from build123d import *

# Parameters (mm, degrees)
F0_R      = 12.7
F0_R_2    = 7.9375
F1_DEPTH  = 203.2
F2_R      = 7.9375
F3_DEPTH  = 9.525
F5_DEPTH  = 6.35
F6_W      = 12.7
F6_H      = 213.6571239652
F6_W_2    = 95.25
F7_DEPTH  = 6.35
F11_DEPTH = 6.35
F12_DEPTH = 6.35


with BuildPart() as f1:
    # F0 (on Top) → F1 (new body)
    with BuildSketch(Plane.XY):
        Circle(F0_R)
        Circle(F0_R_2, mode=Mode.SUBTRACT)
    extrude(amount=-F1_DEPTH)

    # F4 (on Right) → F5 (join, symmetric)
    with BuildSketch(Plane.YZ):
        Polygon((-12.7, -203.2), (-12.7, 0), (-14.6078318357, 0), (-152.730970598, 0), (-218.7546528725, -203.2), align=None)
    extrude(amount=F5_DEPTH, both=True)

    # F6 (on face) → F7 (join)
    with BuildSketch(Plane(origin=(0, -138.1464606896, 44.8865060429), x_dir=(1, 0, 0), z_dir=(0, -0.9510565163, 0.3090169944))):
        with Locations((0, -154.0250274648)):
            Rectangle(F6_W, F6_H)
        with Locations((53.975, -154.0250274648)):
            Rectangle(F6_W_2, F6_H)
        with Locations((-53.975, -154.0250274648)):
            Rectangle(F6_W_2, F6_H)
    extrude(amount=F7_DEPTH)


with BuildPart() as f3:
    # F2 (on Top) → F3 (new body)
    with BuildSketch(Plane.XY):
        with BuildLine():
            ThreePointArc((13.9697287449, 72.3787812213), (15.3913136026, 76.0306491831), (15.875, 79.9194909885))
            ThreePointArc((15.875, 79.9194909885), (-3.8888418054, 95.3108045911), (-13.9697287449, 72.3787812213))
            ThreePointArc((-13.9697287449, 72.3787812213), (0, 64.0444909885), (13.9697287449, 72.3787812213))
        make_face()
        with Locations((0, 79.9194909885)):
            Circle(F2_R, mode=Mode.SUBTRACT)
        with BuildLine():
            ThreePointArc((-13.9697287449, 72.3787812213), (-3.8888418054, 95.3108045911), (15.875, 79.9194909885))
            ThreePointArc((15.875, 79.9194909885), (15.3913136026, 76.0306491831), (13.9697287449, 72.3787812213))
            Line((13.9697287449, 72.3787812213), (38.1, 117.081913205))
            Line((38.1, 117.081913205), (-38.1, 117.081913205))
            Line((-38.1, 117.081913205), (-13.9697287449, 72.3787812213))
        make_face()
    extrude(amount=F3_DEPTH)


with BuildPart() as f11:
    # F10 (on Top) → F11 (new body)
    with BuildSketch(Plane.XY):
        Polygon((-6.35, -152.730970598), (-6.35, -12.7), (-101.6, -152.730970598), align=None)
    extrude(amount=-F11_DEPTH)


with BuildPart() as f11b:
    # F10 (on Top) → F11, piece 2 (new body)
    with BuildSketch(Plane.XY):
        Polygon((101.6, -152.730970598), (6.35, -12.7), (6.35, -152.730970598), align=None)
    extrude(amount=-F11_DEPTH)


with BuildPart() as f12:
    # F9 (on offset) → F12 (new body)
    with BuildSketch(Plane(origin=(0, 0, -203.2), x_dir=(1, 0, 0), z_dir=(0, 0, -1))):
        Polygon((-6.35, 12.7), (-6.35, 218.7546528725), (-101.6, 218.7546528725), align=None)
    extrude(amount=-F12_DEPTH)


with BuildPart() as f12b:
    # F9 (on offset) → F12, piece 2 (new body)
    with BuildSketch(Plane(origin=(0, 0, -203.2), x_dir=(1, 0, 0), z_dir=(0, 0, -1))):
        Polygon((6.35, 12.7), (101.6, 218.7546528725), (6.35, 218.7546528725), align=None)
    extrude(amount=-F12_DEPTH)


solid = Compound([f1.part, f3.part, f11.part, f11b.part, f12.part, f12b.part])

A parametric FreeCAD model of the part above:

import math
import FreeCAD as App
import Part
import Sketcher
from FreeCAD import Vector
Q = App.Units.Quantity


def add_polygon(sketch, points):
    """Adds a closed chain of lines whose ends are joined by coincident constraints."""
    first, n = sketch.GeometryCount, len(points)
    for a, b in zip(points, points[1:] + points[:1]):
        sketch.addGeometry(Part.LineSegment(App.Vector(*a, 0), App.Vector(*b, 0)), False)
    for i in range(n):
        sketch.addConstraint(Sketcher.Constraint("Coincident", first + i, 2, first + (i + 1) % n, 1))

doc = App.newDocument("Part")
body = doc.addObject("PartDesign::Body", "Body")
body.AllowCompound = True

sketch1 = body.newObject("Sketcher::SketchObject", "Sketch")
sketch1.AttachmentSupport = (doc.getObject("XY_Plane"), [""])
sketch1.MapMode = "FlatFace"
sketch1.addGeometry([
    Part.Circle(Vector(0, 0, 0), Vector(0, 0, 1), 12.7),
    Part.Circle(Vector(0, 0, 0), Vector(0, 0, 1), 7.9375),
], False)
sketch1.addConstraint([
    Sketcher.Constraint("Coincident", 0, 3, -1, 1),
    Sketcher.Constraint("Coincident", 1, 3, -1, 1),
    Sketcher.Constraint("Diameter", 0, Q("1 in")),
    Sketcher.Constraint("Diameter", 1, Q("0.625 in")),
])
pad1 = body.newObject("PartDesign::Pad", "Pad")
pad1.Profile = sketch1
pad1.Length = Q("8 in")
pad1.Reversed = True

sketch2 = body.newObject("Sketcher::SketchObject", "Sketch001")
sketch2.AttachmentSupport = (doc.getObject("YZ_Plane"), [""])
sketch2.MapMode = "FlatFace"
add_polygon(sketch2, [(-12.7, -203.2), (-12.7, 0), (-152.730971, 0), (-218.754653, -203.2)])
sketch2.addConstraint([
    Sketcher.Constraint("Vertical", 0),
    Sketcher.Constraint("Horizontal", 1),
    Sketcher.Constraint("Horizontal", 3),
    Sketcher.Constraint("PointOnObject", 0, 2, -1),
    Sketcher.Constraint("DistanceY", 0, 1, 0, 2, Q("8 in")),
    Sketcher.Constraint("Angle", 2, Q("-108 deg")),
    Sketcher.Constraint("DistanceX", 0, 2, -1, 1, Q("0.5 in")),
    Sketcher.Constraint("DistanceX", 1, 2, 1, 1, 140.030971),
])
pad2 = body.newObject("PartDesign::Pad", "Pad001")
pad2.Profile = sketch2
pad2.Length = Q("0.5 in")
pad2.Midplane = True

sketch3 = body.newObject("Sketcher::SketchObject", "Sketch002")
sketch3.Placement = App.Placement(Vector(0, -138.146461, 44.886506), App.Rotation(Vector(1, 0, 0), Vector(0, 0.309016994, 0.951056516), Vector(0, -0.951056516, 0.309016994), "ZXY"))
add_polygon(sketch3, [(101.6, -260.853589), (101.6, -47.196465), (-101.6, -47.196465), (-101.6, -260.853589)])
sketch3.addConstraint([
    Sketcher.Constraint("Vertical", 0),
    Sketcher.Constraint("Horizontal", 1),
    Sketcher.Constraint("Vertical", 2),
    Sketcher.Constraint("Horizontal", 3),
    Sketcher.Constraint("DistanceX", 1, 2, 1, 1, Q("8 in")),
    Sketcher.Constraint("DistanceX", -1, 1, 0, 2, Q("4 in")),
    Sketcher.Constraint("DistanceY", 0, 1, 0, 2, 213.657124),
    Sketcher.Constraint("DistanceY", 2, 2, -1, 1, 260.853589),
])
pad3 = body.newObject("PartDesign::Pad", "Pad002")
pad3.Profile = sketch3
pad3.Length = Q("0.25 in")
body2 = doc.addObject("PartDesign::Body", "Body001")

sketch4 = body2.newObject("Sketcher::SketchObject", "Sketch003")
sketch4.AttachmentSupport = (doc.getObject("XY_Plane001"), [""])
sketch4.MapMode = "FlatFace"
sketch4.addGeometry([
    Part.ArcOfCircle(Part.Circle(Vector(0, 79.919491, 0), Vector(0, 0, 1), 15.875), math.radians(-151.640302), math.radians(-28.359698)),
    Part.LineSegment(Vector(13.969729, 72.378781, 0), Vector(38.1, 117.081913, 0)),
    Part.LineSegment(Vector(38.1, 117.081913, 0), Vector(-38.1, 117.081913, 0)),
    Part.LineSegment(Vector(-38.1, 117.081913, 0), Vector(-13.969729, 72.378781, 0)),
    Part.Circle(Vector(0, 79.919491, 0), Vector(0, 0, 1), 7.9375),
], False)
sketch4.addConstraint([
    Sketcher.Constraint("Tangent", 0, 2, 1, 1),
    Sketcher.Constraint("Coincident", 1, 2, 2, 1),
    Sketcher.Constraint("Coincident", 2, 2, 3, 1),
    Sketcher.Constraint("Tangent", 3, 2, 0, 1),
    Sketcher.Constraint("Horizontal", 2),
    Sketcher.Constraint("Coincident", 4, 3, 0, 3),
    Sketcher.Constraint("Symmetric", 0, 2, 3, 2, -2),
    Sketcher.Constraint("DistanceX", 2, 2, 2, 1, Q("3 in")),
    Sketcher.Constraint("Distance", 1, Q("2 in")),
    Sketcher.Constraint("Diameter", 4, Q("0.625 in")),
    Sketcher.Constraint("Radius", 0, Q("0.625 in")),
    Sketcher.Constraint("DistanceY", -1, 1, 0, 3, 79.919491),
])
pad4 = body2.newObject("PartDesign::Pad", "Pad003")
pad4.Profile = sketch4
pad4.Length = Q("0.375 in")
body3 = doc.addObject("PartDesign::Body", "Body002")

sketch5 = body3.newObject("Sketcher::SketchObject", "Sketch004")
sketch5.AttachmentSupport = (doc.getObject("XY_Plane002"), [""])
sketch5.MapMode = "FlatFace"
add_polygon(sketch5, [(-6.35, -152.730971), (-6.35, -12.7), (-101.6, -152.730971)])
sketch5.addConstraint([
    Sketcher.Constraint("Vertical", 0),
    Sketcher.Constraint("Horizontal", 2),
    Sketcher.Constraint("DistanceX", 1, 2, -1, 1, Q("4 in")),
    Sketcher.Constraint("DistanceX", 2, 1, 2, 2, Q("3.75 in")),
    Sketcher.Constraint("DistanceY", 0, 2, -1, 1, Q("0.5 in")),
    Sketcher.Constraint("DistanceY", 0, 1, 0, 2, 140.030971),
])
pad5 = body3.newObject("PartDesign::Pad", "Pad004")
pad5.Profile = sketch5
pad5.Length = Q("0.25 in")
pad5.Reversed = True
body4 = doc.addObject("PartDesign::Body", "Body003")

sketch6 = body4.newObject("Sketcher::SketchObject", "Sketch005")
sketch6.AttachmentSupport = (doc.getObject("XY_Plane003"), [""])
sketch6.MapMode = "FlatFace"
add_polygon(sketch6, [(101.6, -152.730971), (6.35, -12.7), (6.35, -152.730971)])
sketch6.addConstraint([
    Sketcher.Constraint("Vertical", 1),
    Sketcher.Constraint("Horizontal", 2),
    Sketcher.Constraint("DistanceX", -1, 1, 2, 2, Q("4 in")),
    Sketcher.Constraint("DistanceX", 2, 1, 2, 2, Q("3.75 in")),
    Sketcher.Constraint("DistanceY", 0, 2, -1, 1, Q("0.5 in")),
    Sketcher.Constraint("DistanceY", 1, 2, 1, 1, 140.030971),
])
pad6 = body4.newObject("PartDesign::Pad", "Pad005")
pad6.Profile = sketch6
pad6.Length = Q("0.25 in")
pad6.Reversed = True
body5 = doc.addObject("PartDesign::Body", "Body004")

sketch7 = body5.newObject("Sketcher::SketchObject", "Sketch006")
sketch7.AttachmentSupport = (doc.getObject("XY_Plane004"), [""])
sketch7.MapMode = "FlatFace"
sketch7.AttachmentOffset = App.Placement(Vector(0, 0, -8 * 25.4), App.Rotation())
add_polygon(sketch7, [(-6.35, -12.7), (-6.35, -218.754653), (-101.6, -218.754653)])
sketch7.addConstraint([
    Sketcher.Constraint("Vertical", 0),
    Sketcher.Constraint("Horizontal", 1),
    Sketcher.Constraint("DistanceX", 1, 2, -1, 1, Q("4 in")),
    Sketcher.Constraint("DistanceX", 1, 2, 1, 1, Q("3.75 in")),
    Sketcher.Constraint("DistanceY", 2, 2, -1, 1, Q("0.5 in")),
    Sketcher.Constraint("DistanceY", 0, 2, 0, 1, 206.054653),
])
pad7 = body5.newObject("PartDesign::Pad", "Pad006")
pad7.Profile = sketch7
pad7.Length = Q("0.25 in")
body6 = doc.addObject("PartDesign::Body", "Body005")

sketch8 = body6.newObject("Sketcher::SketchObject", "Sketch007")
sketch8.AttachmentSupport = (doc.getObject("XY_Plane005"), [""])
sketch8.MapMode = "FlatFace"
sketch8.AttachmentOffset = App.Placement(Vector(0, 0, -8 * 25.4), App.Rotation())
add_polygon(sketch8, [(6.35, -12.7), (101.6, -218.754653), (6.35, -218.754653)])
sketch8.addConstraint([
    Sketcher.Constraint("Horizontal", 1),
    Sketcher.Constraint("Vertical", 2),
    Sketcher.Constraint("DistanceX", -1, 1, 0, 2, Q("4 in")),
    Sketcher.Constraint("DistanceX", 1, 2, 1, 1, Q("3.75 in")),
    Sketcher.Constraint("DistanceY", 2, 2, -1, 1, Q("0.5 in")),
    Sketcher.Constraint("DistanceY", 2, 1, 2, 2, 206.054653),
])
pad8 = body6.newObject("PartDesign::Pad", "Pad007")
pad8.Profile = sketch8
pad8.Length = Q("0.25 in")

doc.recompute()
